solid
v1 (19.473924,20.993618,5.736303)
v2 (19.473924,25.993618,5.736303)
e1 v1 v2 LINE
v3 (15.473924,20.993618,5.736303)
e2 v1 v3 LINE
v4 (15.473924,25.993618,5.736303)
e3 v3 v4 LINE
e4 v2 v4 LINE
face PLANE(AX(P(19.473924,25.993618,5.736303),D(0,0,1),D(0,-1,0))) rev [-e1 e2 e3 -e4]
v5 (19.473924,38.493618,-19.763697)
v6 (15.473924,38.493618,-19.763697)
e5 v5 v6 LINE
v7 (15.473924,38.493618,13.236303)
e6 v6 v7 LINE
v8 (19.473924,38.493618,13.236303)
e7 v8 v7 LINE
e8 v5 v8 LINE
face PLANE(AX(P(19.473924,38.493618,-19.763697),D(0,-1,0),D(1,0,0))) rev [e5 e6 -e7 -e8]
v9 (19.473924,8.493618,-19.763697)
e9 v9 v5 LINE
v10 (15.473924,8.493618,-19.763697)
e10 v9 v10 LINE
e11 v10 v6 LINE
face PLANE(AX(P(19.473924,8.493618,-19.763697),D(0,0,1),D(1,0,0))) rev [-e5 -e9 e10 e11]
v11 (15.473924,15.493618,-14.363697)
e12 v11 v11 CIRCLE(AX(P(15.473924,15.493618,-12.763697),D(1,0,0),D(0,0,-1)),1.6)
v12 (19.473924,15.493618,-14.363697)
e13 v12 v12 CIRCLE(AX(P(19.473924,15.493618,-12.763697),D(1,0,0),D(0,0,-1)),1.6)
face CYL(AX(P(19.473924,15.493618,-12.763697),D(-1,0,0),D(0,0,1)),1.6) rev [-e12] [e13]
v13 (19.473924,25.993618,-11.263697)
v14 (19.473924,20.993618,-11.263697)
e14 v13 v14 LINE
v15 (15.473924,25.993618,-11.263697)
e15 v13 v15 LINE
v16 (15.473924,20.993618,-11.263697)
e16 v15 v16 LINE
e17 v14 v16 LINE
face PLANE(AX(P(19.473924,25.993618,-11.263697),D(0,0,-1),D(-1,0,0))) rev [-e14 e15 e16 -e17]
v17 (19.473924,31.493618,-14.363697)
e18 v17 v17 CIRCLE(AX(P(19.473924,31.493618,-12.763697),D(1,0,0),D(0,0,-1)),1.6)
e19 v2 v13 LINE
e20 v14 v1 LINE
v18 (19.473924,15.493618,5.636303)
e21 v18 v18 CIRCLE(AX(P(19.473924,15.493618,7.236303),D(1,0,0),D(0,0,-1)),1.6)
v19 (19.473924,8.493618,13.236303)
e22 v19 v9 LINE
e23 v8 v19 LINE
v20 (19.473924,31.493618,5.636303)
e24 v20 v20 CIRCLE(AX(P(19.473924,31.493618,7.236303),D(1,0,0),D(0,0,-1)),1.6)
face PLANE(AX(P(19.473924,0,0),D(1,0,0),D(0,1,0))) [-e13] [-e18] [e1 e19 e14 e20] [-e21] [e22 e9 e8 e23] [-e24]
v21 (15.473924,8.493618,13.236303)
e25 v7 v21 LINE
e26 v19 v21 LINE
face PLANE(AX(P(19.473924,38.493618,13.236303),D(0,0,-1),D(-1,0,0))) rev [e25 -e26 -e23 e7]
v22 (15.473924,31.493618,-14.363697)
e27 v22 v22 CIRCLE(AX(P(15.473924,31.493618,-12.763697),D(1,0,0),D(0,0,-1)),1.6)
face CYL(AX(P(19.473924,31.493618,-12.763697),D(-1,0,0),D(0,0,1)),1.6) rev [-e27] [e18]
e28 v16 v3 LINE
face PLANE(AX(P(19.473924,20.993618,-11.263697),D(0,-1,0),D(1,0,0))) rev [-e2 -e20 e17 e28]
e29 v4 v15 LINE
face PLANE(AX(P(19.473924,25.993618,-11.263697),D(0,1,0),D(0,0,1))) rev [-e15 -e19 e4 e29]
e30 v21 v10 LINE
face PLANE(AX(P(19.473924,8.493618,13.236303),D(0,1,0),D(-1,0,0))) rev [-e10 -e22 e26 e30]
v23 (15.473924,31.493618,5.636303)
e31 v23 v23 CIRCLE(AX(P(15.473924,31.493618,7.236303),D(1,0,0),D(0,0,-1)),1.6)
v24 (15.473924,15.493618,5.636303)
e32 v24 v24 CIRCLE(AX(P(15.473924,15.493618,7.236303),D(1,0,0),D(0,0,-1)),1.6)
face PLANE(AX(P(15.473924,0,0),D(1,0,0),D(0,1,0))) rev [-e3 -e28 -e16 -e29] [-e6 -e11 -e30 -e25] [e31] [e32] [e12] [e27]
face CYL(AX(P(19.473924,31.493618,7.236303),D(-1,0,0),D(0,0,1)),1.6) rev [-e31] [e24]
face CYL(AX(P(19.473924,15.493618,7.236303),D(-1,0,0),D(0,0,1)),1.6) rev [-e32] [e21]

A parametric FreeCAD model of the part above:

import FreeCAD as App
import Part
import Sketcher
from FreeCAD import Vector


def add_polygon(sketch, points):
    """Adds a closed chain of lines whose ends are joined by coincident constraints."""
    first, n = sketch.GeometryCount, len(points)
    for a, b in zip(points, points[1:] + points[:1]):
        sketch.addGeometry(Part.LineSegment(App.Vector(*a, 0), App.Vector(*b, 0)), False)
    for i in range(n):
        sketch.addConstraint(Sketcher.Constraint("Coincident", first + i, 2, first + (i + 1) % n, 1))

doc = App.newDocument("Part")
body = doc.addObject("PartDesign::Body", "Body")

# Sketch on YZ plane
sketch1 = body.newObject("Sketcher::SketchObject", "Sketch")
sketch1.AttachmentSupport = (doc.getObject("YZ_Plane"), [""])
sketch1.MapMode = "FlatFace"
sketch1.AttachmentOffset = App.Placement(Vector(0, 0, 15.473924), App.Rotation())
add_polygon(sketch1, [(38.5, 13.2), (8.5, 13.2), (8.5, -19.8), (38.5, -19.8)])  # lines 0-3
sketch1.addGeometry(Part.Circle(Vector(15.5, 7.2, 0), Vector(0, 0, 1), 1.6), False)  # 4
sketch1.addGeometry(Part.Circle(Vector(15.5, -12.8, 0), Vector(0, 0, 1), 1.6), False)  # 5
sketch1.addGeometry(Part.Circle(Vector(31.5, 7.2, 0), Vector(0, 0, 1), 1.6), False)  # 6
sketch1.addGeometry(Part.Circle(Vector(31.5, -12.8, 0), Vector(0, 0, 1), 1.6), False)  # 7
sketch1.addConstraint(Sketcher.Constraint("Horizontal", 0))
sketch1.addConstraint(Sketcher.Constraint("Vertical", 1))
sketch1.addConstraint(Sketcher.Constraint("Horizontal", 2))
sketch1.addConstraint(Sketcher.Constraint("Vertical", 3))
sketch1.addConstraint(Sketcher.Constraint("Equal", 4, 5))
sketch1.addConstraint(Sketcher.Constraint("Equal", 5, 6))
sketch1.addConstraint(Sketcher.Constraint("Equal", 6, 7))
sketch1.addConstraint(Sketcher.Constraint("Horizontal", 4, 3, 6, 3))
sketch1.addConstraint(Sketcher.Constraint("Horizontal", 5, 3, 7, 3))
sketch1.addConstraint(Sketcher.Constraint("Vertical", 4, 3, 5, 3))
sketch1.addConstraint(Sketcher.Constraint("Vertical", 6, 3, 7, 3))
sketch1.addConstraint(Sketcher.Constraint("Diameter", 4, 3.2))
sketch1.addConstraint(Sketcher.Constraint("DistanceX", 0, 2, 0, 1, 30.0))
sketch1.addConstraint(Sketcher.Constraint("DistanceY", 1, 2, 1, 1, 33.0))
sketch1.addConstraint(Sketcher.Constraint("DistanceY", 5, 3, 4, 3, 20.0))
sketch1.addConstraint(Sketcher.Constraint("DistanceX", 4, 3, 6, 3, 16.0))
sketch1.addConstraint(Sketcher.Constraint("DistanceX", 0, 2, 4, 3, 7.0))
sketch1.addConstraint(Sketcher.Constraint("DistanceY", 4, 3, 0, 2, 6.0))
sketch1.addConstraint(Sketcher.Constraint("DistanceX", -1, 1, 4, 3, 15.493618))
sketch1.addConstraint(Sketcher.Constraint("DistanceY", -1, 1, 4, 3, 7.236303))
pad1 = body.newObject("PartDesign::Pad", "Pad")
pad1.Profile = sketch1
pad1.Length = 4

# Sketch on YZ plane
sketch2 = body.newObject("Sketcher::SketchObject", "Sketch001")
sketch2.AttachmentSupport = (doc.getObject("YZ_Plane"), [""])
sketch2.MapMode = "FlatFace"
sketch2.AttachmentOffset = App.Placement(Vector(0, 0, 15.473924), App.Rotation())
add_polygon(sketch2, [(26, -11), (21, -11), (21, 6), (26, 6)])  # lines 0-3
sketch2.addConstraint(Sketcher.Constraint("Horizontal", 0))
sketch2.addConstraint(Sketcher.Constraint("Vertical", 1))
sketch2.addConstraint(Sketcher.Constraint("Horizontal", 2))
sketch2.addConstraint(Sketcher.Constraint("Vertical", 3))
sketch2.addConstraint(Sketcher.Constraint("DistanceX", 0, 2, 0, 1, 5.0))
sketch2.addConstraint(Sketcher.Constraint("DistanceY", 1, 1, 1, 2, 17.0))
sketch2.addConstraint(Sketcher.Constraint("DistanceX", -1, 1, 0, 2, 20.993618))
sketch2.addConstraint(Sketcher.Constraint("DistanceY", 0, 2, -1, 1, 11.263697))
pocket1 = body.newObject("PartDesign::Pocket", "Pocket")
pocket1.Profile = sketch2
pocket1.Type = "ThroughAll"
pocket1.Reversed = True

doc.recompute()
